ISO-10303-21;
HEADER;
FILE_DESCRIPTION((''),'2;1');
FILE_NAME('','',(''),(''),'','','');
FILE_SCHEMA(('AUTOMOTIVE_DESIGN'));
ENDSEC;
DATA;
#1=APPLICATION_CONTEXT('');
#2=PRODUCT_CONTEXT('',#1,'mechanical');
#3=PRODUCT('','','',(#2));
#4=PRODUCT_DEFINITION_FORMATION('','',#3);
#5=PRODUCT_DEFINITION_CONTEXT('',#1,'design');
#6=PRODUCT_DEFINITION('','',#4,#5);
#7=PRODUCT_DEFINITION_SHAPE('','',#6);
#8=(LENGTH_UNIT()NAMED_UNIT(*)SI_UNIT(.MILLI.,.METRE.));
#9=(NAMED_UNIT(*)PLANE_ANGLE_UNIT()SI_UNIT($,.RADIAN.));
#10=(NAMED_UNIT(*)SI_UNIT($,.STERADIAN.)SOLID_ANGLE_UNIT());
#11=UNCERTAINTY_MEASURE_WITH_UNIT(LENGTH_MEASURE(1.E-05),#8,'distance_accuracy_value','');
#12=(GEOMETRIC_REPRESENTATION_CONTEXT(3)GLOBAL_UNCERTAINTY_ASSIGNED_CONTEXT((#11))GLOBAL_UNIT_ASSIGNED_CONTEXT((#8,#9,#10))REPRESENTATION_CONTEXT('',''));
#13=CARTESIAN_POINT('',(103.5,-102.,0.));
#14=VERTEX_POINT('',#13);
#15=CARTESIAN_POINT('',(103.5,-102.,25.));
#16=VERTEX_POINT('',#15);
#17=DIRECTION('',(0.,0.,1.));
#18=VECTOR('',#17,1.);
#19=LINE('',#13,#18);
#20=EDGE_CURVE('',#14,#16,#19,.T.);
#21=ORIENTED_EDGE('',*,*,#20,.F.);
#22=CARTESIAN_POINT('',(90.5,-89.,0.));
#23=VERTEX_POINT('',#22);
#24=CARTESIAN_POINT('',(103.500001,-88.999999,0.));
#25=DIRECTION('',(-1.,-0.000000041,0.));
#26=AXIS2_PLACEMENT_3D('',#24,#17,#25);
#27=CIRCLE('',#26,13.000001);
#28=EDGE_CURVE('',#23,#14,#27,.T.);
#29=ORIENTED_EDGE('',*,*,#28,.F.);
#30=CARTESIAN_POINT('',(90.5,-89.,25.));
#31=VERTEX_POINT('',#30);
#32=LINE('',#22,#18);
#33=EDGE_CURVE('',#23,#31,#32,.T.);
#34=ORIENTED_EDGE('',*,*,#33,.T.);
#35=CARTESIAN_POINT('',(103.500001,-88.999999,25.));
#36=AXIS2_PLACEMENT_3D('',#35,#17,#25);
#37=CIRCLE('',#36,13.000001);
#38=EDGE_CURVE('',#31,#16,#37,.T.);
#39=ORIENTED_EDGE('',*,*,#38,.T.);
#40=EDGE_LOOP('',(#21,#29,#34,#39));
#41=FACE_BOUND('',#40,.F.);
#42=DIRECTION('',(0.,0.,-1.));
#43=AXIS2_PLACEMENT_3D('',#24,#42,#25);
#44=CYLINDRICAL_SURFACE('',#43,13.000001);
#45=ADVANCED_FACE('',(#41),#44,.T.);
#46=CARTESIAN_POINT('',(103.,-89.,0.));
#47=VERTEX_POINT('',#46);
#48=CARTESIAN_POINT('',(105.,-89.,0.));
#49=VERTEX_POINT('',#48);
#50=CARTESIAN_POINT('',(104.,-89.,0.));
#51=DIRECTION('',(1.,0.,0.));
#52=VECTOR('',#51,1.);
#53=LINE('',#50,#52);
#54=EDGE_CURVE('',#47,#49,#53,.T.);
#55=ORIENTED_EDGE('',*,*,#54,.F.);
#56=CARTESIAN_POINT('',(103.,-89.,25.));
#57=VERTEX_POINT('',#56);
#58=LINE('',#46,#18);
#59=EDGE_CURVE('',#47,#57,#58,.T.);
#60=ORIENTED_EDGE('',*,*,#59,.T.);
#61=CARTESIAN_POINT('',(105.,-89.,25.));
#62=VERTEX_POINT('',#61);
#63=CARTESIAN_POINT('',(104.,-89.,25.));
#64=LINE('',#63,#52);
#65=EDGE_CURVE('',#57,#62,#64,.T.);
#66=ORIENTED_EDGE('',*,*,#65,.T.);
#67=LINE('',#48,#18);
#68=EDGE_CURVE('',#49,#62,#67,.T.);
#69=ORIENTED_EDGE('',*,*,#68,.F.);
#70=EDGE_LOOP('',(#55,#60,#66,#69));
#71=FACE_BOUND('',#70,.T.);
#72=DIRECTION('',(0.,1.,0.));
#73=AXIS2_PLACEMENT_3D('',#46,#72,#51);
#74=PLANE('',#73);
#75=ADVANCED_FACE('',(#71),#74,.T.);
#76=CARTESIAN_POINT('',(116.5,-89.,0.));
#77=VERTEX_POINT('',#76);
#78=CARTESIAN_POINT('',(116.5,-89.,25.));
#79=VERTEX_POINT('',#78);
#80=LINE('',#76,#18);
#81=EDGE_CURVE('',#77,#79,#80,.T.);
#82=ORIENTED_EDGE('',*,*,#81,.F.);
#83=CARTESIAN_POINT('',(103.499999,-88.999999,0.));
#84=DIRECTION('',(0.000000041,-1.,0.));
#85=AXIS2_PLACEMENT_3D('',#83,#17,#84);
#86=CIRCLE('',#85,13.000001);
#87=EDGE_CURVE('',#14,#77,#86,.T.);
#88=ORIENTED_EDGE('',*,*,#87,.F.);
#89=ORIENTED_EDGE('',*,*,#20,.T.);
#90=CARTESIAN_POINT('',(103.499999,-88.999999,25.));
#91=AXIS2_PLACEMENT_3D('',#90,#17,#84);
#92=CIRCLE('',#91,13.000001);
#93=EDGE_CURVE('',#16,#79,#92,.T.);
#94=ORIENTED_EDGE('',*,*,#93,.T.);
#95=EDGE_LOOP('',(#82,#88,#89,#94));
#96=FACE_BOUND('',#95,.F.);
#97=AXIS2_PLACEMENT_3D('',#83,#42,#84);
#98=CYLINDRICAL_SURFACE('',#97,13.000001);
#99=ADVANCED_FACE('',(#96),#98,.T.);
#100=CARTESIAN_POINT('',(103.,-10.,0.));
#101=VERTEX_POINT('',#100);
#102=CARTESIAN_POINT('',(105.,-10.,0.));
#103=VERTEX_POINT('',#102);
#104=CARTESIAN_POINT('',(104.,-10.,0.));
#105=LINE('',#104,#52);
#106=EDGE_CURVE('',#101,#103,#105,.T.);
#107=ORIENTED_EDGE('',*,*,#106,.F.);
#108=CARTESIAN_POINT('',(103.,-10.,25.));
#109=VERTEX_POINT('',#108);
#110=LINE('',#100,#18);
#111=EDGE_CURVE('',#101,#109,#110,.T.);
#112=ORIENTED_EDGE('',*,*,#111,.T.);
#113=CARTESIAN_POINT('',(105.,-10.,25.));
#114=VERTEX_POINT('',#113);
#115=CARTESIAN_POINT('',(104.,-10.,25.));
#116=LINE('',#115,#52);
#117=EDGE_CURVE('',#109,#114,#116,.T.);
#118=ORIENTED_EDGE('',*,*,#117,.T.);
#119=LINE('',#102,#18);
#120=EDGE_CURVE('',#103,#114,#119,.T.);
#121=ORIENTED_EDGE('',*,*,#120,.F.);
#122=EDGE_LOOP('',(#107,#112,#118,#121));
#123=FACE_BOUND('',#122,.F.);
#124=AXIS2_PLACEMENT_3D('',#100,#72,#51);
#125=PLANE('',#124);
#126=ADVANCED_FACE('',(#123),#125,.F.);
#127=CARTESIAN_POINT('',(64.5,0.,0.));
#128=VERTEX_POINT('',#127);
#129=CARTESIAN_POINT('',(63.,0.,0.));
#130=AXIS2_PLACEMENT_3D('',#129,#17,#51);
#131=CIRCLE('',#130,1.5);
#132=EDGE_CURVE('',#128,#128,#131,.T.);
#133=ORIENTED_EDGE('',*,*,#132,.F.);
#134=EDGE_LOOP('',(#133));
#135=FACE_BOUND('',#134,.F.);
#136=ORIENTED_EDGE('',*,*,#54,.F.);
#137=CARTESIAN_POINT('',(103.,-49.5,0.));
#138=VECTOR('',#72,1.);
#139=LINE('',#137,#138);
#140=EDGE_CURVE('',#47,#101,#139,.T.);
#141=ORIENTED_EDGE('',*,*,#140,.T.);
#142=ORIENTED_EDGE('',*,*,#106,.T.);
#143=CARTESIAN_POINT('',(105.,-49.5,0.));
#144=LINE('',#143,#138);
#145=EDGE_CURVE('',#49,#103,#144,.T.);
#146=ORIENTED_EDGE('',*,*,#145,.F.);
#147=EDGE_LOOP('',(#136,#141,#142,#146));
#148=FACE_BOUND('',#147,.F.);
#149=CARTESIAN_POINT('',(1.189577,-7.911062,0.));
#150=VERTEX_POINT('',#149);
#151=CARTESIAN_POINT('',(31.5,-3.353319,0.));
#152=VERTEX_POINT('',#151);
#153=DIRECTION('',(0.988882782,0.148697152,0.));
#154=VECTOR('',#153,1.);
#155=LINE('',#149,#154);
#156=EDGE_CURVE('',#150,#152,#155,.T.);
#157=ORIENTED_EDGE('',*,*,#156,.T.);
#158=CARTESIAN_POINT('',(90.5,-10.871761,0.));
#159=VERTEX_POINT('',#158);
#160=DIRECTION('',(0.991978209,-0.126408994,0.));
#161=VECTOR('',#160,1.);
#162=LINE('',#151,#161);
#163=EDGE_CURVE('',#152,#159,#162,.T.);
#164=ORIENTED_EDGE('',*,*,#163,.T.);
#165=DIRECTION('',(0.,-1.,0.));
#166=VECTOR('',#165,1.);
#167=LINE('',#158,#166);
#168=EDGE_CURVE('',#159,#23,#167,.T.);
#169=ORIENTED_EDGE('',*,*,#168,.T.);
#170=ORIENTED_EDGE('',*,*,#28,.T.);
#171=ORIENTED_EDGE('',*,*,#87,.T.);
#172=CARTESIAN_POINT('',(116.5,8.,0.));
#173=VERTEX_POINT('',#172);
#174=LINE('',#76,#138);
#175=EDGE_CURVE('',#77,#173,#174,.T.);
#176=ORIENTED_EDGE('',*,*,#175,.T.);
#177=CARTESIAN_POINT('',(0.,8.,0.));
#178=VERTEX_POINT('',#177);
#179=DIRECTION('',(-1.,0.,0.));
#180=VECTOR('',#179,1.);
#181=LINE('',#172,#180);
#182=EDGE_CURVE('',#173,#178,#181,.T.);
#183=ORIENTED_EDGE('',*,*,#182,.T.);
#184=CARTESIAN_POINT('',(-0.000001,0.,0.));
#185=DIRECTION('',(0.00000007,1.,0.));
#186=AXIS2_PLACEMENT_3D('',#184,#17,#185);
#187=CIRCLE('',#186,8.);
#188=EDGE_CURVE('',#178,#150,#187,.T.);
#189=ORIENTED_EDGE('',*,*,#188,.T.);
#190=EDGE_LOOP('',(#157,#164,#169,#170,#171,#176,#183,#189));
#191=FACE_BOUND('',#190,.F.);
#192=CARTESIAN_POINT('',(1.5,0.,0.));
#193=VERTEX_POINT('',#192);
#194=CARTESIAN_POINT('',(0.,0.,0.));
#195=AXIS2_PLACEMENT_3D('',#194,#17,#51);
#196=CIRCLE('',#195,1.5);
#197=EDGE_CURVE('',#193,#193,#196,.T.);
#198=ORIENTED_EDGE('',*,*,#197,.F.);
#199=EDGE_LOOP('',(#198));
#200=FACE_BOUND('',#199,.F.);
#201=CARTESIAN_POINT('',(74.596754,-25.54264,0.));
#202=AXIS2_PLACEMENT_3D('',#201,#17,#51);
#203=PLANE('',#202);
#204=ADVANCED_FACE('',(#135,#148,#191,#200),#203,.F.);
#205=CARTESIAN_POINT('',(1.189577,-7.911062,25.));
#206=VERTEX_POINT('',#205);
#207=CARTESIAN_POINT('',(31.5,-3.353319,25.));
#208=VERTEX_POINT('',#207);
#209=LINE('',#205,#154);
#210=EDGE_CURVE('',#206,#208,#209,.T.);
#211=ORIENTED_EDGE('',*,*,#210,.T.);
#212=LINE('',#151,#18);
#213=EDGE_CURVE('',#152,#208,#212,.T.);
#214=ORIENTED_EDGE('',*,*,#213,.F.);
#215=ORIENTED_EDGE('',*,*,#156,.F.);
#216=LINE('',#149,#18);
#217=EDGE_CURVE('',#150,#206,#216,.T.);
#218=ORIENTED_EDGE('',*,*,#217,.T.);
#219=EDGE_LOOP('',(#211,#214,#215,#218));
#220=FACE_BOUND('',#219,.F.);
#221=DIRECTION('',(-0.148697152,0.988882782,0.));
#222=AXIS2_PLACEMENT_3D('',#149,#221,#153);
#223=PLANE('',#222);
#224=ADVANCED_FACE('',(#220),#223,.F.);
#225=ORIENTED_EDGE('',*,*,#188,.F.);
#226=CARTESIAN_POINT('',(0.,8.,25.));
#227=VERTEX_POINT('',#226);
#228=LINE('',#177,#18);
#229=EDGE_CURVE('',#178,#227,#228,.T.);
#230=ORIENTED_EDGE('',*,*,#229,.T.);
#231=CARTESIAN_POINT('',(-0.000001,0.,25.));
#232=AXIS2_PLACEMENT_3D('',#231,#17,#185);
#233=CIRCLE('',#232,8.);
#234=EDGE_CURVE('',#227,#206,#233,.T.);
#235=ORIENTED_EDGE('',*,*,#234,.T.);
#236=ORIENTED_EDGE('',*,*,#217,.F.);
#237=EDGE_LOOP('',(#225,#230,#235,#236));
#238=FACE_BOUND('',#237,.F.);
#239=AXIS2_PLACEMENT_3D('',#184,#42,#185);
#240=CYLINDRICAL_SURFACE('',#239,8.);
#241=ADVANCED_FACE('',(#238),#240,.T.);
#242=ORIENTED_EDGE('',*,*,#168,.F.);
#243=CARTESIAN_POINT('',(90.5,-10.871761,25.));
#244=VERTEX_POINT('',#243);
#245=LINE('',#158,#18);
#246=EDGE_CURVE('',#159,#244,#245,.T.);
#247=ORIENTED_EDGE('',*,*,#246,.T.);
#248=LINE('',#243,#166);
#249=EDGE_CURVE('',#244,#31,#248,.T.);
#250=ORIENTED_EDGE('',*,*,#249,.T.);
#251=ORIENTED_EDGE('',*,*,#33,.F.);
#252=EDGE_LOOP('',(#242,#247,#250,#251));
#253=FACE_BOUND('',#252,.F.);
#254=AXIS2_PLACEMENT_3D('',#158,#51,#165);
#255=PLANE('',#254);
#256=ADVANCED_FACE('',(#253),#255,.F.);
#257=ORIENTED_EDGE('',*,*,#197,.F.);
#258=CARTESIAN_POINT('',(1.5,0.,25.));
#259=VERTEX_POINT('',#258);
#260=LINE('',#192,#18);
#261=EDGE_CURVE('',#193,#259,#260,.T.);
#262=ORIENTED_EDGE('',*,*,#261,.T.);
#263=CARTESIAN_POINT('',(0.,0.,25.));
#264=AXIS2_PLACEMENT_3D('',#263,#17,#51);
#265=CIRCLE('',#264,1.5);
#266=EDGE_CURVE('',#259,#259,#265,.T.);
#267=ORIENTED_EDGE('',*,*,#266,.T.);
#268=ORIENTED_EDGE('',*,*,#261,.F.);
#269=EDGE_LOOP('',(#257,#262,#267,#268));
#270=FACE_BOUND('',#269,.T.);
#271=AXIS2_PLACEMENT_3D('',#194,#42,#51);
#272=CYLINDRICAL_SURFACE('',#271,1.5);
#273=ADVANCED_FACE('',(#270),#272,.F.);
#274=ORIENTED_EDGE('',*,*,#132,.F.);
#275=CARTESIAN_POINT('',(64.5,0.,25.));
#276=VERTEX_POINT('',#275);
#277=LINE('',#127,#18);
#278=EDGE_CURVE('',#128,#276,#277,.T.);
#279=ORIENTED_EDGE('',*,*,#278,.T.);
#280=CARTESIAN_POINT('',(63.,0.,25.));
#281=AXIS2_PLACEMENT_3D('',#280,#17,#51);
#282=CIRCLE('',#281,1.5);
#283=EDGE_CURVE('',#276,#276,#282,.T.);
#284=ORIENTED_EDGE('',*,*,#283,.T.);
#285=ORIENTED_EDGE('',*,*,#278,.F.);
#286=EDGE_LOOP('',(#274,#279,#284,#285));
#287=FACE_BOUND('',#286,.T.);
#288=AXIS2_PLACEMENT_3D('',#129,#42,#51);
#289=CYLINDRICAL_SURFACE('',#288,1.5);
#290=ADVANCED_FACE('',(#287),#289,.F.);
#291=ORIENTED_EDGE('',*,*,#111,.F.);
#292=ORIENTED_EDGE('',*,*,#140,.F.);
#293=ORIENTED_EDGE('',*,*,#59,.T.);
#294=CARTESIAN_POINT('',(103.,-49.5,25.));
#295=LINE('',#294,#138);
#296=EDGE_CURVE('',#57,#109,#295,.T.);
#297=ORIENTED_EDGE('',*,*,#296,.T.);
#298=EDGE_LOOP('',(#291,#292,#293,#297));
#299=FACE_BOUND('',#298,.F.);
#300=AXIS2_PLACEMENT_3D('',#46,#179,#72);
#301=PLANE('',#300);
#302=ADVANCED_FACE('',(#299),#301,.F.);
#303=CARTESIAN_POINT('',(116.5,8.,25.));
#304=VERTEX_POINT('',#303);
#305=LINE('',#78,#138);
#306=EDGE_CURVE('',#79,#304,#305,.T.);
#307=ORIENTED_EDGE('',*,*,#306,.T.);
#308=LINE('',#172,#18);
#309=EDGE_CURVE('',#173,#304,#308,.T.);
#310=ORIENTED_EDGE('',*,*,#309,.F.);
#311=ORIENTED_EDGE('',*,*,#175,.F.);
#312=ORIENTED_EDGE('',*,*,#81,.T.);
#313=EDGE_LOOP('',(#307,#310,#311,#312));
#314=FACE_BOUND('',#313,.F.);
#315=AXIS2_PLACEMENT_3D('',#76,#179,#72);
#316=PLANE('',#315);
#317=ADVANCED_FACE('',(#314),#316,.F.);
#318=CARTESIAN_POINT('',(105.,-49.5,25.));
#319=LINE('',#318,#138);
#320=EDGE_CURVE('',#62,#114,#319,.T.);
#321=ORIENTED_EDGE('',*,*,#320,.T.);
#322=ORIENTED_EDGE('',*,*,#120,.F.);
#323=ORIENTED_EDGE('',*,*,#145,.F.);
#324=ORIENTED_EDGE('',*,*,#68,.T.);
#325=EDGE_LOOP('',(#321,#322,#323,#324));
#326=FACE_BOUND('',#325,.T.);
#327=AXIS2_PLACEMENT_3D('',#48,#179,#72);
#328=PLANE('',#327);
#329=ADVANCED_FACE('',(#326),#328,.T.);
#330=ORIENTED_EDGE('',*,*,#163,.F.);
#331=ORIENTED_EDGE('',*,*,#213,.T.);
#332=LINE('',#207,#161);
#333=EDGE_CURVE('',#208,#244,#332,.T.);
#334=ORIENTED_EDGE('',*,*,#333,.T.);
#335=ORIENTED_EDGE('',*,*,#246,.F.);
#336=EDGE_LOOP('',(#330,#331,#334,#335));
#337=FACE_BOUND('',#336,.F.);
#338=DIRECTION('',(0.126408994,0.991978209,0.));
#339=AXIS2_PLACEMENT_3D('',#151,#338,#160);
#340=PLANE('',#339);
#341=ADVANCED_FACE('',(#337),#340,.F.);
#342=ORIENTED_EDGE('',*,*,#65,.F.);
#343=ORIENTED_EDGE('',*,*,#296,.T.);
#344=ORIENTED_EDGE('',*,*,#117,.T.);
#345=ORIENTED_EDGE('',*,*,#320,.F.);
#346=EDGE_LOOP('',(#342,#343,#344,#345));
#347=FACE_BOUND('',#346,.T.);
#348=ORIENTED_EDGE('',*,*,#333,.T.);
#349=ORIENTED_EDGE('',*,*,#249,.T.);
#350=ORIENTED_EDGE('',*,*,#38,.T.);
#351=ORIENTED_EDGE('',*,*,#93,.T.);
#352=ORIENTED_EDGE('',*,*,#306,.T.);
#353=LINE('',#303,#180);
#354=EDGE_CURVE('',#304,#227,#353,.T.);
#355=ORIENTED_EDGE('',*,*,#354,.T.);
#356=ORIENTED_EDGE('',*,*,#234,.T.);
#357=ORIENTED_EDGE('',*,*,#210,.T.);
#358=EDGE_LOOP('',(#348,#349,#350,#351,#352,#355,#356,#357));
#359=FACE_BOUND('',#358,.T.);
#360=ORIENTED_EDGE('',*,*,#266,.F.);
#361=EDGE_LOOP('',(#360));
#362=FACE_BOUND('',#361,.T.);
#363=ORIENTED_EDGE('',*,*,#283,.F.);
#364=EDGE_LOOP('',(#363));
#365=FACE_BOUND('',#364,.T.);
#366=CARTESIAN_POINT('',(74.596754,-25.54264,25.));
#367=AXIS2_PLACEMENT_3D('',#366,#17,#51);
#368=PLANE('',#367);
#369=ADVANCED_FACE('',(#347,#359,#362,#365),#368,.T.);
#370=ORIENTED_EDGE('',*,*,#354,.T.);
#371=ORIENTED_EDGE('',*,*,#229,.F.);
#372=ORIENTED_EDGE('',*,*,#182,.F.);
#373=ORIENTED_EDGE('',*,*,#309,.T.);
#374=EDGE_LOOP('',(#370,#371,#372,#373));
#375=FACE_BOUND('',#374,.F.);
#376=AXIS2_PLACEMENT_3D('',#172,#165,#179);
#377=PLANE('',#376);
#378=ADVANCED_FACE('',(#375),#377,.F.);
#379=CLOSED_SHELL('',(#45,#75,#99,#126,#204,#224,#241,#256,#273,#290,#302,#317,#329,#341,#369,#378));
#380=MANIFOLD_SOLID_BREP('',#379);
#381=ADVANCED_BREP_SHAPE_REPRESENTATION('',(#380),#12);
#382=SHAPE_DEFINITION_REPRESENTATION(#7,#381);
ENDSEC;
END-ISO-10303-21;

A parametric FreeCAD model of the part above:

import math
import FreeCAD as App
import Part
import Sketcher

V = App.Vector

doc = App.newDocument("Part")
body = doc.addObject("PartDesign::Body", "Body")

# Sketch on XY plane
sketch1 = doc.addObject("Sketcher::SketchObject", "Sketch")
body.addObject(sketch1)
sketch1.AttachmentSupport = (doc.XY_Plane, [""])
sketch1.MapMode = "FlatFace"
sketch1.addGeometry(Part.LineSegment(V(116.5, 8, 0), V(0, 8, 0)), False)
sketch1.addGeometry(Part.ArcOfCircle(Part.Circle(V(-0.000001, 0, 0), V(0, 0, 1), 8), math.radians(89.999996), math.radians(278.551435)), False)
sketch1.addGeometry(Part.LineSegment(V(1.189577, -7.911062, 0), V(31.5, -3.353319, 0)), False)
sketch1.addGeometry(Part.LineSegment(V(31.5, -3.353319, 0), V(90.5, -10.871761, 0)), False)
sketch1.addGeometry(Part.LineSegment(V(90.5, -10.871761, 0), V(90.5, -89, 0)), False)
sketch1.addGeometry(Part.ArcOfCircle(Part.Circle(V(103.500001, -88.999999, 0), V(0, 0, 1), 13.000001), math.radians(-179.999998), math.radians(-90.000002)), False)
sketch1.addGeometry(Part.ArcOfCircle(Part.Circle(V(103.499999, -88.999999, 0), V(0, 0, 1), 13.000001), math.radians(-89.999998), math.radians(-0.000002)), False)
sketch1.addGeometry(Part.LineSegment(V(116.5, -89, 0), V(116.5, 8, 0)), False)
sketch1.addGeometry(Part.LineSegment(V(105, -89, 0), V(103, -89, 0)), False)
sketch1.addGeometry(Part.LineSegment(V(103, -89, 0), V(103, -10, 0)), False)
sketch1.addGeometry(Part.LineSegment(V(103, -10, 0), V(105, -10, 0)), False)
sketch1.addGeometry(Part.LineSegment(V(105, -10, 0), V(105, -89, 0)), False)
sketch1.addGeometry(Part.Circle(V(0, 0, 0), V(0, 0, 1), 1.5), False)
sketch1.addGeometry(Part.Circle(V(63, 0, 0), V(0, 0, 1), 1.5), False)
sketch1.addConstraint(Sketcher.Constraint("Tangent", 0, 2, 1, 1))
sketch1.addConstraint(Sketcher.Constraint("Tangent", 1, 2, 2, 1))
sketch1.addConstraint(Sketcher.Constraint("Coincident", 2, 2, 3, 1))
sketch1.addConstraint(Sketcher.Constraint("Coincident", 3, 2, 4, 1))
sketch1.addConstraint(Sketcher.Constraint("Tangent", 4, 2, 5, 1))
sketch1.addConstraint(Sketcher.Constraint("Tangent", 5, 2, 6, 1))
sketch1.addConstraint(Sketcher.Constraint("Tangent", 6, 2, 7, 1))
sketch1.addConstraint(Sketcher.Constraint("Coincident", 7, 2, 0, 1))
sketch1.addConstraint(Sketcher.Constraint("Coincident", 8, 2, 9, 1))
sketch1.addConstraint(Sketcher.Constraint("Coincident", 9, 2, 10, 1))
sketch1.addConstraint(Sketcher.Constraint("Coincident", 10, 2, 11, 1))
sketch1.addConstraint(Sketcher.Constraint("Coincident", 11, 2, 8, 1))
sketch1.addConstraint(Sketcher.Constraint("Horizontal", 0))
sketch1.addConstraint(Sketcher.Constraint("Vertical", 4))
sketch1.addConstraint(Sketcher.Constraint("Vertical", 7))
sketch1.addConstraint(Sketcher.Constraint("Horizontal", 8))
sketch1.addConstraint(Sketcher.Constraint("Vertical", 9))
sketch1.addConstraint(Sketcher.Constraint("Horizontal", 10))
sketch1.addConstraint(Sketcher.Constraint("Vertical", 11))
sketch1.addConstraint(Sketcher.Constraint("Coincident", 1, 3, -1, 1))
sketch1.addConstraint(Sketcher.Constraint("Coincident", 12, 3, -1, 1))
sketch1.addConstraint(Sketcher.Constraint("Equal", 5, 6))
sketch1.addConstraint(Sketcher.Constraint("Equal", 12, 13))
sketch1.addConstraint(Sketcher.Constraint("PointOnObject", 13, 3, -1))
sketch1.addConstraint(Sketcher.Constraint("Horizontal", 6, 2, 8, 2))
sketch1.addConstraint(Sketcher.Constraint("Vertical", 6, 3, 5, 2))
sketch1.addConstraint(Sketcher.Constraint("Diameter", 12, 3.0))
sketch1.addConstraint(Sketcher.Constraint("Radius", 1, 8.0))
sketch1.addConstraint(Sketcher.Constraint("Radius", 5, 13.000001))
sketch1.addConstraint(Sketcher.Constraint("DistanceX", 8, 2, 8, 1, 2.0))
sketch1.addConstraint(Sketcher.Constraint("DistanceY", 7, 1, 7, 2, 97.0))
sketch1.addConstraint(Sketcher.Constraint("DistanceY", 9, 1, 9, 2, 79.0))
sketch1.addConstraint(Sketcher.Constraint("DistanceX", 0, 2, 0, 1, 116.5))
sketch1.addConstraint(Sketcher.Constraint("DistanceX", -1, 1, 13, 3, 63.0))
sketch1.addConstraint(Sketcher.Constraint("DistanceX", -1, 1, 8, 2, 103.0))
sketch1.addConstraint(Sketcher.Constraint("DistanceX", 2, 2, 3, 2, 59.0))
sketch1.addConstraint(Sketcher.Constraint("DistanceY", 4, 2, 4, 1, 78.128239))
sketch1.addConstraint(Sketcher.Constraint("DistanceY", 3, 2, 1, 2, 2.960699))
pad1 = doc.addObject("PartDesign::Pad", "Pad")
body.addObject(pad1)
pad1.Profile = sketch1
pad1.Length = 25

doc.recompute()
